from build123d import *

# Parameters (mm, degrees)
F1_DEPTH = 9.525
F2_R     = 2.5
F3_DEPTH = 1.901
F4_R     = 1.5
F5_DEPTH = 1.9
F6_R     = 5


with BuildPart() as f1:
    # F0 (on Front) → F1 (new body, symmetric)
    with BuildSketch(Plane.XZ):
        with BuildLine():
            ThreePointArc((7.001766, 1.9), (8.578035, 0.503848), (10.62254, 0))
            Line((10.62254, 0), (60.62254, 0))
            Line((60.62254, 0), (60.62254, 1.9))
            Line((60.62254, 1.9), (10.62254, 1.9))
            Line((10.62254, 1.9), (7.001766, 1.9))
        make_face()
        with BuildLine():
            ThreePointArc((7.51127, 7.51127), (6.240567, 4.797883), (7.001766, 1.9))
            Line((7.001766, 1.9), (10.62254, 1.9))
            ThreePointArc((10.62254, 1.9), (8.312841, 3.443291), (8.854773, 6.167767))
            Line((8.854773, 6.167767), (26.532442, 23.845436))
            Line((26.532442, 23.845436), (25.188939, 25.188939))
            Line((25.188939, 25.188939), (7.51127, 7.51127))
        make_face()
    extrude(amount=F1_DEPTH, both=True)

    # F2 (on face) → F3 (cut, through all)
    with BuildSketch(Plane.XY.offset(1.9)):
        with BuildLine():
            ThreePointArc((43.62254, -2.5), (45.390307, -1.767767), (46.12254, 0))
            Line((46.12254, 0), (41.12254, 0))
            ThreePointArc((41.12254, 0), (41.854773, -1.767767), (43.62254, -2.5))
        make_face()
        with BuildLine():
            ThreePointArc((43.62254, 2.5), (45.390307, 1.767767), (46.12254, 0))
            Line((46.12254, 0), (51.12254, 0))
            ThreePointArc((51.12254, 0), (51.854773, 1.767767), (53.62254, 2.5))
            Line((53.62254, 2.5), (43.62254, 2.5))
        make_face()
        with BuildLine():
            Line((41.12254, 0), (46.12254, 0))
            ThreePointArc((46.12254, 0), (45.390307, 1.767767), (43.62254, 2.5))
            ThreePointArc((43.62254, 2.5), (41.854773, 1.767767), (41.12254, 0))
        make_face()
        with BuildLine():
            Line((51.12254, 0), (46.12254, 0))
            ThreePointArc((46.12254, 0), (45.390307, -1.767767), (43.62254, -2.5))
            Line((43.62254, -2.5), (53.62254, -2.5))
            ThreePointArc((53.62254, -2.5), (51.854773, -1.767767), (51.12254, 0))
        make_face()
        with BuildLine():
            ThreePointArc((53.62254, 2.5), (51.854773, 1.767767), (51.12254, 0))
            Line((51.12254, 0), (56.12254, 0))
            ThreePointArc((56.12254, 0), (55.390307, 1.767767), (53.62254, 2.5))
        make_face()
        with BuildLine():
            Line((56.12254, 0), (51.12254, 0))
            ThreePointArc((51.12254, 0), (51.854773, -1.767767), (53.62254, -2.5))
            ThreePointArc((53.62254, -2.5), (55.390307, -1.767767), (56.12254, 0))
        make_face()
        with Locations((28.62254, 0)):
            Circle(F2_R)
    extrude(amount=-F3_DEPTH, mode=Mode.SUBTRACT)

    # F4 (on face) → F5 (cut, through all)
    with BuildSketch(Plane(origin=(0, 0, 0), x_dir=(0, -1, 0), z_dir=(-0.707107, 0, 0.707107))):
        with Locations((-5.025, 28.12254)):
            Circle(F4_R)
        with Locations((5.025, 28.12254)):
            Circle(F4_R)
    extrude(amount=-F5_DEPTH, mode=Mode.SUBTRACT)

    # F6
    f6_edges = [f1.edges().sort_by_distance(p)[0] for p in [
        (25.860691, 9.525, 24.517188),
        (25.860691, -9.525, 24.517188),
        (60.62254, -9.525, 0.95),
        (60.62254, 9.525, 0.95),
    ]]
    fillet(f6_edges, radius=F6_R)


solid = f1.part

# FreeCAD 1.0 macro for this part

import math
import FreeCAD as App
import Part
import Sketcher
from FreeCAD import Vector
Q = App.Units.Quantity


def edges_at(feature, points):
    """Names of the edges that pass closest to the given points."""
    edges = feature.Shape.Edges
    near = lambda p: min(range(len(edges)), key=lambda i: edges[i].distToShape(Part.Vertex(*p))[0])
    return sorted({f"Edge{near(p) + 1}" for p in points})

doc = App.newDocument("Part")
body = doc.addObject("PartDesign::Body", "Body")

sketch1 = doc.addObject("Sketcher::SketchObject", "Sketch")
body.addObject(sketch1)
sketch1.AttachmentSupport = (doc.XZ_Plane, [""])
sketch1.MapMode = "FlatFace"
sketch1.addGeometry([
    Part.ArcOfCircle(Part.Circle(Vector(10.6, 4.4, 0), Vector(0, 0, 1), 4.4), math.radians(-145), math.radians(-90)),
    Part.LineSegment(Vector(10.6, 0, 0), Vector(60.6, 0, 0)),
    Part.LineSegment(Vector(60.6, 0, 0), Vector(60.6, 1.9, 0)),
    Part.LineSegment(Vector(60.6, 1.9, 0), Vector(10.6, 1.9, 0)),
    Part.ArcOfCircle(Part.Circle(Vector(10.6, 4.4, 0), Vector(0, 0, 1), 2.5), math.radians(135), math.radians(270)),
    Part.LineSegment(Vector(8.9, 6.2, 0), Vector(26.5, 23.8, 0)),
    Part.LineSegment(Vector(26.5, 23.8, 0), Vector(25.2, 25.2, 0)),
    Part.LineSegment(Vector(25.2, 25.2, 0), Vector(7.5, 7.5, 0)),
    Part.ArcOfCircle(Part.Circle(Vector(10.6, 4.4, 0), Vector(0, 0, 1), 4.4), math.radians(135), math.radians(215)),
], False)
sketch1.addConstraint([
    Sketcher.Constraint("Tangent", 0, 2, 1, 1),
    Sketcher.Constraint("Coincident", 1, 2, 2, 1),
    Sketcher.Constraint("Coincident", 2, 2, 3, 1),
    Sketcher.Constraint("Tangent", 3, 2, 4, 2),
    Sketcher.Constraint("Tangent", 4, 1, 5, 1),
    Sketcher.Constraint("Coincident", 5, 2, 6, 1),
    Sketcher.Constraint("Coincident", 6, 2, 7, 1),
    Sketcher.Constraint("Tangent", 7, 2, 8, 1),
    Sketcher.Constraint("Tangent", 8, 2, 0, 1),
    Sketcher.Constraint("Horizontal", 1),
    Sketcher.Constraint("Vertical", 2),
    Sketcher.Constraint("Horizontal", 3),
    Sketcher.Constraint("Coincident", 4, 3, 0, 3),
    Sketcher.Constraint("Equal", 0, 8),
    Sketcher.Constraint("PointOnObject", 0, 2, -1),
    Sketcher.Constraint("Perpendicular", 5, 6),
    Sketcher.Constraint("Perpendicular", 6, 7),
    Sketcher.Constraint("Horizontal", 3, 2, 8, 2),
    Sketcher.Constraint("Radius", 0, Q("4.400001 mm")),
    Sketcher.Constraint("Radius", 4, Q("2.5 mm")),
    Sketcher.Constraint("DistanceX", 1, 1, 1, 2, Q("50 mm")),
    Sketcher.Constraint("Angle", 5, Q("45 deg")),
    Sketcher.Constraint("Distance", 5, Q("24.999999 mm")),
    Sketcher.Constraint("DistanceX", -1, 1, 0, 3, Q("10.62254 mm")),
])
pad1 = doc.addObject("PartDesign::Pad", "Pad")
body.addObject(pad1)
pad1.Profile = sketch1
pad1.Length = 19.05
pad1.Midplane = True

sketch2 = doc.addObject("Sketcher::SketchObject", "Sketch001")
body.addObject(sketch2)
sketch2.AttachmentSupport = (doc.XY_Plane, [""])
sketch2.MapMode = "FlatFace"
sketch2.AttachmentOffset = App.Placement(Vector(0, 0, 1.9), App.Rotation())
sketch2.addGeometry([
    Part.LineSegment(Vector(53.6, 2.5, 0), Vector(43.6, 2.5, 0)),
    Part.ArcOfCircle(Part.Circle(Vector(43.6, 0, 0), Vector(0, 0, 1), 2.5), math.radians(90), math.radians(180)),
    Part.ArcOfCircle(Part.Circle(Vector(43.6, 0, 0), Vector(0, 0, 1), 2.5), math.radians(180), math.radians(270)),
    Part.LineSegment(Vector(43.6, -2.5, 0), Vector(53.6, -2.5, 0)),
    Part.ArcOfCircle(Part.Circle(Vector(53.6, 0, 0), Vector(0, 0, 1), 2.5), math.radians(-90), math.radians(0)),
    Part.ArcOfCircle(Part.Circle(Vector(53.6, 0, 0), Vector(0, 0, 1), 2.5), math.radians(0), math.radians(90)),
    Part.Circle(Vector(28.6, 0, 0), Vector(0, 0, 1), 2.5),
], False)
sketch2.addConstraint([
    Sketcher.Constraint("Tangent", 0, 2, 1, 1),
    Sketcher.Constraint("Tangent", 1, 2, 2, 1),
    Sketcher.Constraint("Tangent", 2, 2, 3, 1),
    Sketcher.Constraint("Tangent", 3, 2, 4, 1),
    Sketcher.Constraint("Tangent", 4, 2, 5, 1),
    Sketcher.Constraint("Tangent", 5, 2, 0, 1),
    Sketcher.Constraint("Horizontal", 0),
    Sketcher.Constraint("Horizontal", 3),
    Sketcher.Constraint("Equal", 1, 2),
    Sketcher.Constraint("Equal", 2, 4),
    Sketcher.Constraint("Equal", 5, 6),
    Sketcher.Constraint("PointOnObject", 1, 3, -1),
    Sketcher.Constraint("PointOnObject", 6, 3, -1),
    Sketcher.Constraint("PointOnObject", 1, 2, -1),
    Sketcher.Constraint("PointOnObject", 4, 2, -1),
    Sketcher.Constraint("Diameter", 6, Q("5 mm")),
    Sketcher.Constraint("DistanceX", 0, 2, 0, 1, Q("10 mm")),
    Sketcher.Constraint("DistanceX", 6, 3, 1, 3, Q("15 mm")),
    Sketcher.Constraint("DistanceX", -1, 1, 1, 3, Q("43.62254 mm")),
])
pocket1 = doc.addObject("PartDesign::Pocket", "Pocket")
body.addObject(pocket1)
pocket1.Profile = sketch2
pocket1.Type = "ThroughAll"

sketch3 = doc.addObject("Sketcher::SketchObject", "Sketch002")
body.addObject(sketch3)
sketch3.Placement = App.Placement(Vector(0, 0, 0), App.Rotation(Vector(0, -1, 0), Vector(0.707106781, 0, 0.707106781), Vector(-0.707106781, 0, 0.707106781), "ZXY"))
sketch3.addGeometry([
    Part.Circle(Vector(-5, 28.1, 0), Vector(0, 0, 1), 1.5),
    Part.Circle(Vector(5, 28.1, 0), Vector(0, 0, 1), 1.5),
], False)
sketch3.addConstraint([
    Sketcher.Constraint("Equal", 0, 1),
    Sketcher.Constraint("Symmetric", 0, 3, 1, 3, -2),
    Sketcher.Constraint("Diameter", 0, Q("3 mm")),
    Sketcher.Constraint("DistanceX", 0, 3, 1, 3, Q("10.05 mm")),
    Sketcher.Constraint("DistanceY", -1, 1, 0, 3, Q("28.12254 mm")),
])
pocket2 = doc.addObject("PartDesign::Pocket", "Pocket001")
body.addObject(pocket2)
pocket2.Profile = sketch3
pocket2.Length = 1.9
doc.recompute()

fillet = doc.addObject("PartDesign::Fillet", "Fillet")
body.addObject(fillet)
fillet.Base = (pocket2, edges_at(pocket2, [
    (25.861, 9.525, 24.517),
    (25.861, -9.525, 24.517),
    (60.623, -9.525, 0.95),
    (60.623, 9.525, 0.95),
]))
fillet.Radius = 5

doc.recompute()
